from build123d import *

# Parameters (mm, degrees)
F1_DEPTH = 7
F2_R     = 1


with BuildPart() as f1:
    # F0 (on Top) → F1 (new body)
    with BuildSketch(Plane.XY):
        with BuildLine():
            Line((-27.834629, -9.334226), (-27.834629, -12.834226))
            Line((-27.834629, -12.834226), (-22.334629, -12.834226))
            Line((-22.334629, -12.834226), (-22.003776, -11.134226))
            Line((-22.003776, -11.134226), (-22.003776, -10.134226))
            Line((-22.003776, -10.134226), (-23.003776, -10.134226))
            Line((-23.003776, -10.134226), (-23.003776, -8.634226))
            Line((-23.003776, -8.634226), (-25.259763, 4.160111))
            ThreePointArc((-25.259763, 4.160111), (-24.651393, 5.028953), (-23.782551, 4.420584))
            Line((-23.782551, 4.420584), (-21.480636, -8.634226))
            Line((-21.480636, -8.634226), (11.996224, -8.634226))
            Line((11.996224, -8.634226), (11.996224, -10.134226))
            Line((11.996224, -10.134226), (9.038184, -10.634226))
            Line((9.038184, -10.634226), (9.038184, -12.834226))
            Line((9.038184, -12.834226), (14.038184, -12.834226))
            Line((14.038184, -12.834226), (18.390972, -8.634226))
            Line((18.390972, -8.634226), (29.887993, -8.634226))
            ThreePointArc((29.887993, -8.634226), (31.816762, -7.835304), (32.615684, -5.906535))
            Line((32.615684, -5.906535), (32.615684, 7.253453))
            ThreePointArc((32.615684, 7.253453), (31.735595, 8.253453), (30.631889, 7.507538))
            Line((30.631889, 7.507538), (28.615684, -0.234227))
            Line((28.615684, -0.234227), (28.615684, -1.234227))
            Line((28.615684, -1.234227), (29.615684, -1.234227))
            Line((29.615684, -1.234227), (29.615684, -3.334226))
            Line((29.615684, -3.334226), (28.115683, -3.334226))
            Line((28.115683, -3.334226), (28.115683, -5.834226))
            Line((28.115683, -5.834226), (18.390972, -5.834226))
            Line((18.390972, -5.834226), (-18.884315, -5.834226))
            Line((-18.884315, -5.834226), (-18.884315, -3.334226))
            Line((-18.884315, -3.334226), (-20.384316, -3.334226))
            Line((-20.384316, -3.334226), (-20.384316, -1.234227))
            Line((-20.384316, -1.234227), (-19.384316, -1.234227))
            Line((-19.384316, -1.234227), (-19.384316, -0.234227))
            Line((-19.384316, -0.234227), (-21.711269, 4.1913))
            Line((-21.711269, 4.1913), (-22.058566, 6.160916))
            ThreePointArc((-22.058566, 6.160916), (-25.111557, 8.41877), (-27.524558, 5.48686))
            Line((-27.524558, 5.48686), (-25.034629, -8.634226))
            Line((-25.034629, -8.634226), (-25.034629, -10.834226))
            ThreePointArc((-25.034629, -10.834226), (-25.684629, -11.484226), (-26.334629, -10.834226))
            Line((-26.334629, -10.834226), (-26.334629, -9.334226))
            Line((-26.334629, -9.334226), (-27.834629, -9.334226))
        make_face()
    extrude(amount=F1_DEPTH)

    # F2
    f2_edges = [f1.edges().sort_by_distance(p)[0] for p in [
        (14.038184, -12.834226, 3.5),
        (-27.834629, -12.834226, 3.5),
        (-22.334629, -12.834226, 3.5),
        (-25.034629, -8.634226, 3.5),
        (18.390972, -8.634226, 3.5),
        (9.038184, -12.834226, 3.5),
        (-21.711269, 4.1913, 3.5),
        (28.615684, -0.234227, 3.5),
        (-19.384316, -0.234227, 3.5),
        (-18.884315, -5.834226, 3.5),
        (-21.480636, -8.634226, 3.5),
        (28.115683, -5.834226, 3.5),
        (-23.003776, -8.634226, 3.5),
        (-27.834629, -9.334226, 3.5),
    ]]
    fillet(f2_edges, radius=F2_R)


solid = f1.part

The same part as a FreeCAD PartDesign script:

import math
import FreeCAD as App
import Part
import Sketcher
from FreeCAD import Vector
Q = App.Units.Quantity


def edges_at(feature, points):
    """Names of the edges that pass closest to the given points."""
    edges = feature.Shape.Edges
    near = lambda p: min(range(len(edges)), key=lambda i: edges[i].distToShape(Part.Vertex(*p))[0])
    return sorted({f"Edge{near(p) + 1}" for p in points})

doc = App.newDocument("Part")
params = doc.addObject("Spreadsheet::Sheet", "Params")
for row, (alias, value) in enumerate([
    ("sketch1_width", "1 mm"),
    ("sketch1_width2", "5 mm"),
    ("sketch1_width3", "46.999998 mm"),
    ("sketch1_radius", "0.75 mm"),
    ("sketch1_radius2", "0.65 mm"),
    ("pad1_length", "7 mm"),
    ("fillet_radius", "1 mm"),
], start=1):
    params.set(f"A{row}", alias)
    params.set(f"B{row}", "=" + value)
    params.setAlias(f"B{row}", alias)

body = doc.addObject("PartDesign::Body", "Body")

sketch1 = body.newObject("Sketcher::SketchObject", "Sketch")
sketch1.AttachmentSupport = (doc.getObject("XY_Plane"), [""])
sketch1.MapMode = "FlatFace"
sketch1.addGeometry([
    Part.LineSegment(Vector(-27.834629, -9.334226, 0), Vector(-27.834629, -12.834226, 0)),
    Part.LineSegment(Vector(-27.834629, -12.834226, 0), Vector(-22.334629, -12.834226, 0)),
    Part.LineSegment(Vector(-22.334629, -12.834226, 0), Vector(-22.003776, -11.134226, 0)),
    Part.LineSegment(Vector(-22.003776, -11.134226, 0), Vector(-22.003776, -10.134226, 0)),
    Part.LineSegment(Vector(-22.003776, -10.134226, 0), Vector(-23.003776, -10.134226, 0)),
    Part.LineSegment(Vector(-23.003776, -10.134226, 0), Vector(-23.003776, -8.634226, 0)),
    Part.LineSegment(Vector(-23.003776, -8.634226, 0), Vector(-25.259763, 4.160111, 0)),
    Part.ArcOfCircle(Part.Circle(Vector(-24.521157, 4.290347, 0), Vector(0, 0, 1), 0.75), math.radians(10.000069), math.radians(189.999981)),
    Part.LineSegment(Vector(-23.782551, 4.420584, 0), Vector(-21.480636, -8.634226, 0)),
    Part.LineSegment(Vector(-21.480636, -8.634226, 0), Vector(11.996224, -8.634226, 0)),
    Part.LineSegment(Vector(11.996224, -8.634226, 0), Vector(11.996224, -10.134226, 0)),
    Part.LineSegment(Vector(11.996224, -10.134226, 0), Vector(9.038184, -10.634226, 0)),
    Part.LineSegment(Vector(9.038184, -10.634226, 0), Vector(9.038184, -12.834226, 0)),
    Part.LineSegment(Vector(9.038184, -12.834226, 0), Vector(14.038184, -12.834226, 0)),
    Part.LineSegment(Vector(14.038184, -12.834226, 0), Vector(18.390972, -8.634226, 0)),
    Part.LineSegment(Vector(18.390972, -8.634226, 0), Vector(29.887993, -8.634226, 0)),
    Part.ArcOfCircle(Part.Circle(Vector(29.887994, -5.906536, 0), Vector(0, 0, 1), 2.72769), math.radians(-90.000014), math.radians(0.000014)),
    Part.LineSegment(Vector(32.615684, -5.906535, 0), Vector(32.615684, 7.253453, 0)),
    Part.ArcOfCircle(Part.Circle(Vector(31.607515, 7.253453, 0), Vector(0, 0, 1), 1.008169), math.radians(0.000016), math.radians(165.402542)),
    Part.LineSegment(Vector(30.631889, 7.507538, 0), Vector(28.615684, -0.234227, 0)),
    Part.LineSegment(Vector(28.615684, -0.234227, 0), Vector(28.615684, -1.234227, 0)),
    Part.LineSegment(Vector(28.615684, -1.234227, 0), Vector(29.615684, -1.234227, 0)),
    Part.LineSegment(Vector(29.615684, -1.234227, 0), Vector(29.615684, -3.334226, 0)),
    Part.LineSegment(Vector(29.615684, -3.334226, 0), Vector(28.115683, -3.334226, 0)),
    Part.LineSegment(Vector(28.115683, -3.334226, 0), Vector(28.115683, -5.834226, 0)),
    Part.LineSegment(Vector(28.115683, -5.834226, 0), Vector(-18.884315, -5.834226, 0)),
    Part.LineSegment(Vector(-18.884315, -5.834226, 0), Vector(-18.884315, -3.334226, 0)),
    Part.LineSegment(Vector(-18.884315, -3.334226, 0), Vector(-20.384316, -3.334226, 0)),
    Part.LineSegment(Vector(-20.384316, -3.334226, 0), Vector(-20.384316, -1.234227, 0)),
    Part.LineSegment(Vector(-20.384316, -1.234227, 0), Vector(-19.384316, -1.234227, 0)),
    Part.LineSegment(Vector(-19.384316, -1.234227, 0), Vector(-19.384316, -0.234227, 0)),
    Part.LineSegment(Vector(-19.384316, -0.234227, 0), Vector(-21.711269, 4.1913, 0)),
    Part.LineSegment(Vector(-21.711269, 4.1913, 0), Vector(-22.058566, 6.160916, 0)),
    Part.ArcOfCircle(Part.Circle(Vector(-24.774077, 5.682098, 0), Vector(0, 0, 1), 2.757402), math.radians(9.999998), math.radians(184.060234)),
    Part.LineSegment(Vector(-27.524558, 5.48686, 0), Vector(-25.034629, -8.634226, 0)),
    Part.LineSegment(Vector(-25.034629, -8.634226, 0), Vector(-25.034629, -10.834226, 0)),
    Part.ArcOfCircle(Part.Circle(Vector(-25.684629, -10.834226, 0), Vector(0, 0, 1), 0.65), math.radians(180), math.radians(360)),
    Part.LineSegment(Vector(-26.334629, -10.834226, 0), Vector(-26.334629, -9.334226, 0)),
    Part.LineSegment(Vector(-26.334629, -9.334226, 0), Vector(-27.834629, -9.334226, 0)),
], False)
sketch1.addConstraint([
    Sketcher.Constraint("Coincident", 0, 2, 1, 1),
    Sketcher.Constraint("Coincident", 1, 2, 2, 1),
    Sketcher.Constraint("Coincident", 2, 2, 3, 1),
    Sketcher.Constraint("Coincident", 3, 2, 4, 1),
    Sketcher.Constraint("Coincident", 4, 2, 5, 1),
    Sketcher.Constraint("Coincident", 5, 2, 6, 1),
    Sketcher.Constraint("Tangent", 6, 2, 7, 2),
    Sketcher.Constraint("Tangent", 7, 1, 8, 1),
    Sketcher.Constraint("Coincident", 8, 2, 9, 1),
    Sketcher.Constraint("Coincident", 9, 2, 10, 1),
    Sketcher.Constraint("Coincident", 10, 2, 11, 1),
    Sketcher.Constraint("Coincident", 11, 2, 12, 1),
    Sketcher.Constraint("Coincident", 12, 2, 13, 1),
    Sketcher.Constraint("Coincident", 13, 2, 14, 1),
    Sketcher.Constraint("Coincident", 14, 2, 15, 1),
    Sketcher.Constraint("Tangent", 15, 2, 16, 1),
    Sketcher.Constraint("Tangent", 16, 2, 17, 1),
    Sketcher.Constraint("Tangent", 17, 2, 18, 1),
    Sketcher.Constraint("Tangent", 18, 2, 19, 1),
    Sketcher.Constraint("Coincident", 19, 2, 20, 1),
    Sketcher.Constraint("Coincident", 20, 2, 21, 1),
    Sketcher.Constraint("Coincident", 21, 2, 22, 1),
    Sketcher.Constraint("Coincident", 22, 2, 23, 1),
    Sketcher.Constraint("Coincident", 23, 2, 24, 1),
    Sketcher.Constraint("Coincident", 24, 2, 25, 1),
    Sketcher.Constraint("Coincident", 25, 2, 26, 1),
    Sketcher.Constraint("Coincident", 26, 2, 27, 1),
    Sketcher.Constraint("Coincident", 27, 2, 28, 1),
    Sketcher.Constraint("Coincident", 28, 2, 29, 1),
    Sketcher.Constraint("Coincident", 29, 2, 30, 1),
    Sketcher.Constraint("Coincident", 30, 2, 31, 1),
    Sketcher.Constraint("Coincident", 31, 2, 32, 1),
    Sketcher.Constraint("Tangent", 32, 2, 33, 1),
    Sketcher.Constraint("Coincident", 33, 2, 34, 1),
    Sketcher.Constraint("Coincident", 34, 2, 35, 1),
    Sketcher.Constraint("Tangent", 35, 2, 36, 2),
    Sketcher.Constraint("Tangent", 36, 1, 37, 1),
    Sketcher.Constraint("Coincident", 37, 2, 38, 1),
    Sketcher.Constraint("Coincident", 38, 2, 0, 1),
    Sketcher.Constraint("Vertical", 0),
    Sketcher.Constraint("Horizontal", 1),
    Sketcher.Constraint("Vertical", 3),
    Sketcher.Constraint("Horizontal", 4),
    Sketcher.Constraint("Vertical", 5),
    Sketcher.Constraint("Horizontal", 9),
    Sketcher.Constraint("Vertical", 10),
    Sketcher.Constraint("Vertical", 12),
    Sketcher.Constraint("Horizontal", 13),
    Sketcher.Constraint("Horizontal", 15),
    Sketcher.Constraint("Vertical", 17),
    Sketcher.Constraint("Vertical", 20),
    Sketcher.Constraint("Horizontal", 21),
    Sketcher.Constraint("Vertical", 22),
    Sketcher.Constraint("Horizontal", 23),
    Sketcher.Constraint("Vertical", 24),
    Sketcher.Constraint("Horizontal", 25),
    Sketcher.Constraint("Vertical", 26),
    Sketcher.Constraint("Horizontal", 27),
    Sketcher.Constraint("Vertical", 28),
    Sketcher.Constraint("Horizontal", 29),
    Sketcher.Constraint("Vertical", 30),
    Sketcher.Constraint("Vertical", 35),
    Sketcher.Constraint("Vertical", 37),
    Sketcher.Constraint("Horizontal", 38),
    Sketcher.Constraint("Parallel", 6, 8),
    Sketcher.Constraint("Parallel", 8, 32),
    Sketcher.Constraint("Parallel", 32, 34),
    Sketcher.Constraint("Horizontal", 5, 2, 8, 2),
    Sketcher.Constraint("Horizontal", 4, 2, 10, 2),
    Sketcher.Constraint("Horizontal", 1, 2, 12, 2),
    Sketcher.Constraint("Horizontal", 9, 2, 14, 2),
    Sketcher.Constraint("Horizontal", 23, 2, 26, 2),
    Sketcher.Constraint("Horizontal", 21, 2, 28, 2),
    Sketcher.Constraint("Horizontal", 19, 2, 30, 2),
    Sketcher.Constraint("Horizontal", 15, 2, 34, 2),
    Sketcher.Constraint("Equal", 4, 21),
    Sketcher.Constraint("Equal", 23, 27),
    Sketcher.Constraint("Equal", 21, 29),
    Sketcher.Constraint("Equal", 27, 38),
    Sketcher.Constraint("Equal", 29, 3),
    Sketcher.Constraint("Equal", 38, 5),
    Sketcher.Constraint("Equal", 3, 20),
    Sketcher.Constraint("Equal", 12, 35),
    Sketcher.Constraint("Equal", 10, 37),
    Sketcher.Constraint("DistanceX", 4, 2, 4, 1, Q("1 mm")),
    Sketcher.Constraint("DistanceX", 13, 1, 13, 2, Q("5 mm")),
    Sketcher.Constraint("DistanceX", 25, 2, 25, 1, Q("46.999998 mm")),
    Sketcher.Constraint("Angle", 6, Q("100.000001 deg")),
    Sketcher.Constraint("Radius", 7, Q("0.75 mm")),
    Sketcher.Constraint("Radius", 36, Q("0.65 mm")),
    Sketcher.Constraint("Distance", 11, Q("3 mm")),
    Sketcher.Constraint("Distance", 19, Q("8 mm")),
    Sketcher.Constraint("Distance", 31, Q("5 mm")),
    Sketcher.Constraint("Distance", 32, Q("2.000001 mm")),
    Sketcher.Constraint("DistanceX", 1, 1, 1, 2, Q("5.5 mm")),
    Sketcher.Constraint("DistanceX", 23, 2, 23, 1, Q("1.500001 mm")),
    Sketcher.Constraint("DistanceY", 0, 2, 0, 1, Q("3.5 mm")),
    Sketcher.Constraint("DistanceY", 12, 2, 12, 1, Q("2.2 mm")),
    Sketcher.Constraint("DistanceY", 22, 2, 22, 1, Q("2.099999 mm")),
    Sketcher.Constraint("DistanceY", 24, 2, 24, 1, Q("2.5 mm")),
    Sketcher.Constraint("DistanceX", 3, 2, 9, 2, Q("34 mm")),
    Sketcher.Constraint("DistanceX", 19, 2, 16, 2, Q("4 mm")),
    Sketcher.Constraint("Radius", 33, Q("2.757402 mm")),
    Sketcher.Constraint("DistanceY", 15, 2, 20, 2, Q("7.399999 mm")),
    Sketcher.Constraint("Radius", 16, Q("2.72769 mm")),
    Sketcher.Constraint("Radius", 18, Q("1.008169 mm")),
    Sketcher.Constraint("Distance", 8, Q("13.256201 mm")),
    Sketcher.Constraint("Distance", 14, Q("6.048699 mm")),
    Sketcher.Constraint("DistanceX", 15, 1, 15, 2, Q("11.497021 mm")),
    Sketcher.Constraint("DistanceY", -1, 1, 33, 3, Q("5.682098 mm")),
    Sketcher.Constraint("DistanceX", 33, 3, 2, 2, Q("2.770301 mm")),
    Sketcher.Constraint("DistanceX", 33, 2, 7, 3, Q("3.003401 mm")),
    Sketcher.Constraint("DistanceX", 36, 3, -1, 1, Q("25.684629 mm")),
])
sketch1.setExpression("Constraints[84]", "Params.sketch1_width")
sketch1.setExpression("Constraints[85]", "Params.sketch1_width2")
sketch1.setExpression("Constraints[86]", "Params.sketch1_width3")
sketch1.setExpression("Constraints[88]", "Params.sketch1_radius")
sketch1.setExpression("Constraints[89]", "Params.sketch1_radius2")
pad1 = body.newObject("PartDesign::Pad", "Pad")
pad1.Profile = sketch1
pad1.setExpression("Length", "Params.pad1_length")
doc.recompute()

fillet = body.newObject("PartDesign::Fillet", "Fillet")
fillet.Base = (pad1, edges_at(pad1, [
    (14.038, -12.834, 3.5),
    (-27.835, -12.834, 3.5),
    (-22.335, -12.834, 3.5),
    (-25.035, -8.634, 3.5),
    (18.391, -8.634, 3.5),
    (9.038, -12.834, 3.5),
    (-21.711, 4.191, 3.5),
    (28.616, -0.234, 3.5),
    (-19.384, -0.234, 3.5),
    (-18.884, -5.834, 3.5),
    (-21.481, -8.634, 3.5),
    (28.116, -5.834, 3.5),
    (-23.004, -8.634, 3.5),
    (-27.835, -9.334, 3.5),
]))
fillet.setExpression("Radius", "Params.fillet_radius")

doc.recompute()
